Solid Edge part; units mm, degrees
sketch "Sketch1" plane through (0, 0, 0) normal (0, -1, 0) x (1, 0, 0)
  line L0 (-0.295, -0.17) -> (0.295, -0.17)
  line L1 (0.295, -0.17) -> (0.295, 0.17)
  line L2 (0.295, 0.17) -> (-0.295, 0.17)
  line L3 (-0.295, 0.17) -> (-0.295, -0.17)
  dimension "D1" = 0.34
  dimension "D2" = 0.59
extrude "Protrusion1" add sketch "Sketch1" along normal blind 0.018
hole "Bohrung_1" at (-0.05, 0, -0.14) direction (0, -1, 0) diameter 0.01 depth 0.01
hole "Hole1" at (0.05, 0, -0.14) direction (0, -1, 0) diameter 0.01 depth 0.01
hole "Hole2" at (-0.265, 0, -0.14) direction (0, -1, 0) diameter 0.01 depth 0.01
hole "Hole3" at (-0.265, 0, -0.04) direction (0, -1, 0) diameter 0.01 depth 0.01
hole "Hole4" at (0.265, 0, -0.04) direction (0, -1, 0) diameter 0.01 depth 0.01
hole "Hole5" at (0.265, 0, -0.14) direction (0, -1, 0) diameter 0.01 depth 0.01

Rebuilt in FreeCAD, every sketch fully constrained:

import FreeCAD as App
import Part
import Sketcher
from FreeCAD import Vector
Q = App.Units.Quantity

doc = App.newDocument("Part")
body = doc.addObject("PartDesign::Body", "Body")

# Sketch on XZ plane
sketch1 = body.newObject("Sketcher::SketchObject", "Sketch")
sketch1.AttachmentSupport = (doc.getObject("XZ_Plane"), [""])
sketch1.MapMode = "FlatFace"
sketch1.addGeometry([
    Part.LineSegment(Vector(-0.29, 0.17, 0), Vector(-0.29, -0.17, 0)),
    Part.LineSegment(Vector(-0.29, -0.17, 0), Vector(0.29, -0.17, 0)),
    Part.LineSegment(Vector(0.29, -0.17, 0), Vector(0.29, 0.17, 0)),
    Part.LineSegment(Vector(0.29, 0.17, 0), Vector(-0.29, 0.17, 0)),
], False)
sketch1.addConstraint([
    Sketcher.Constraint("Coincident", 0, 2, 1, 1),
    Sketcher.Constraint("Coincident", 1, 2, 2, 1),
    Sketcher.Constraint("Coincident", 2, 2, 3, 1),
    Sketcher.Constraint("Coincident", 3, 2, 0, 1),
    Sketcher.Constraint("Vertical", 0),
    Sketcher.Constraint("Horizontal", 1),
    Sketcher.Constraint("Vertical", 2),
    Sketcher.Constraint("Horizontal", 3),
    Sketcher.Constraint("Symmetric", 0, 2, 2, 2, -1, 1),
    Sketcher.Constraint("DistanceX", 0, 2, -1, 1, Q("0.295 mm")),
    Sketcher.Constraint("DistanceY", 0, 2, 0, 1, Q("0.34 mm")),
])
pad1 = body.newObject("PartDesign::Pad", "Pad")
pad1.Profile = sketch1
pad1.Length = 0.018

# Sketch on XZ plane
sketch2 = body.newObject("Sketcher::SketchObject", "Sketch001")
sketch2.AttachmentSupport = (doc.getObject("XZ_Plane"), [""])
sketch2.MapMode = "FlatFace"
sketch2.addGeometry(Part.Circle(Vector(-0.05, -0.14, 0), Vector(0, 0, 1), 0.005), False)
sketch2.addConstraint([
    Sketcher.Constraint("Diameter", 0, Q("0.01 mm")),
    Sketcher.Constraint("DistanceX", 0, 3, -1, 1, Q("0.05 mm")),
    Sketcher.Constraint("DistanceY", 0, 3, -1, 1, Q("0.14 mm")),
])
doc.recompute()
hole = body.newObject("PartDesign::Hole", "Hole")
hole.Profile = sketch2
hole.ThreadType = "None"
hole.Diameter = 0.01
hole.DepthType = "Dimension"
hole.Depth = 0.01
hole.DrillPoint = "Flat"
hole.Reversed = True

# Sketch on XZ plane
sketch3 = body.newObject("Sketcher::SketchObject", "Sketch002")
sketch3.AttachmentSupport = (doc.getObject("XZ_Plane"), [""])
sketch3.MapMode = "FlatFace"
sketch3.addGeometry(Part.Circle(Vector(0.05, -0.14, 0), Vector(0, 0, 1), 0.005), False)
sketch3.addConstraint([
    Sketcher.Constraint("Diameter", 0, Q("0.01 mm")),
    Sketcher.Constraint("DistanceX", -1, 1, 0, 3, Q("0.05 mm")),
    Sketcher.Constraint("DistanceY", 0, 3, -1, 1, Q("0.14 mm")),
])
doc.recompute()
hole2 = body.newObject("PartDesign::Hole", "Hole001")
hole2.Profile = sketch3
hole2.ThreadType = "None"
hole2.Diameter = 0.01
hole2.DepthType = "Dimension"
hole2.Depth = 0.01
hole2.DrillPoint = "Flat"
hole2.Reversed = True

# Sketch on XZ plane
sketch4 = body.newObject("Sketcher::SketchObject", "Sketch003")
sketch4.AttachmentSupport = (doc.getObject("XZ_Plane"), [""])
sketch4.MapMode = "FlatFace"
sketch4.addGeometry(Part.Circle(Vector(-0.265, -0.14, 0), Vector(0, 0, 1), 0.005), False)
sketch4.addConstraint([
    Sketcher.Constraint("Diameter", 0, Q("0.01 mm")),
    Sketcher.Constraint("DistanceY", 0, 3, -1, 1, Q("0.14 mm")),
    Sketcher.Constraint("DistanceX", 0, 3, -1, 1, Q("0.265 mm")),
])
doc.recompute()
hole3 = body.newObject("PartDesign::Hole", "Hole002")
hole3.Profile = sketch4
hole3.ThreadType = "None"
hole3.Diameter = 0.01
hole3.DepthType = "Dimension"
hole3.Depth = 0.01
hole3.DrillPoint = "Flat"
hole3.Reversed = True

# Sketch on XZ plane
sketch5 = body.newObject("Sketcher::SketchObject", "Sketch004")
sketch5.AttachmentSupport = (doc.getObject("XZ_Plane"), [""])
sketch5.MapMode = "FlatFace"
sketch5.addGeometry(Part.Circle(Vector(-0.265, -0.04, 0), Vector(0, 0, 1), 0.005), False)
sketch5.addConstraint([
    Sketcher.Constraint("Diameter", 0, Q("0.01 mm")),
    Sketcher.Constraint("DistanceY", 0, 3, -1, 1, Q("0.04 mm")),
    Sketcher.Constraint("DistanceX", 0, 3, -1, 1, Q("0.265 mm")),
])
doc.recompute()
hole4 = body.newObject("PartDesign::Hole", "Hole003")
hole4.Profile = sketch5
hole4.ThreadType = "None"
hole4.Diameter = 0.01
hole4.DepthType = "Dimension"
hole4.Depth = 0.01
hole4.DrillPoint = "Flat"
hole4.Reversed = True

# Sketch on XZ plane
sketch6 = body.newObject("Sketcher::SketchObject", "Sketch005")
sketch6.AttachmentSupport = (doc.getObject("XZ_Plane"), [""])
sketch6.MapMode = "FlatFace"
sketch6.addGeometry(Part.Circle(Vector(0.265, -0.04, 0), Vector(0, 0, 1), 0.005), False)
sketch6.addConstraint([
    Sketcher.Constraint("Diameter", 0, Q("0.01 mm")),
    Sketcher.Constraint("DistanceY", 0, 3, -1, 1, Q("0.04 mm")),
    Sketcher.Constraint("DistanceX", -1, 1, 0, 3, Q("0.265 mm")),
])
doc.recompute()
hole5 = body.newObject("PartDesign::Hole", "Hole004")
hole5.Profile = sketch6
hole5.ThreadType = "None"
hole5.Diameter = 0.01
hole5.DepthType = "Dimension"
hole5.Depth = 0.01
hole5.DrillPoint = "Flat"
hole5.Reversed = True

# Sketch on XZ plane
sketch7 = body.newObject("Sketcher::SketchObject", "Sketch006")
sketch7.AttachmentSupport = (doc.getObject("XZ_Plane"), [""])
sketch7.MapMode = "FlatFace"
sketch7.addGeometry(Part.Circle(Vector(0.265, -0.14, 0), Vector(0, 0, 1), 0.005), False)
sketch7.addConstraint([
    Sketcher.Constraint("Diameter", 0, Q("0.01 mm")),
    Sketcher.Constraint("DistanceY", 0, 3, -1, 1, Q("0.14 mm")),
    Sketcher.Constraint("DistanceX", -1, 1, 0, 3, Q("0.265 mm")),
])
doc.recompute()
hole6 = body.newObject("PartDesign::Hole", "Hole005")
hole6.Profile = sketch7
hole6.ThreadType = "None"
hole6.Diameter = 0.01
hole6.DepthType = "Dimension"
hole6.Depth = 0.01
hole6.DrillPoint = "Flat"
hole6.Reversed = True

doc.recompute()
